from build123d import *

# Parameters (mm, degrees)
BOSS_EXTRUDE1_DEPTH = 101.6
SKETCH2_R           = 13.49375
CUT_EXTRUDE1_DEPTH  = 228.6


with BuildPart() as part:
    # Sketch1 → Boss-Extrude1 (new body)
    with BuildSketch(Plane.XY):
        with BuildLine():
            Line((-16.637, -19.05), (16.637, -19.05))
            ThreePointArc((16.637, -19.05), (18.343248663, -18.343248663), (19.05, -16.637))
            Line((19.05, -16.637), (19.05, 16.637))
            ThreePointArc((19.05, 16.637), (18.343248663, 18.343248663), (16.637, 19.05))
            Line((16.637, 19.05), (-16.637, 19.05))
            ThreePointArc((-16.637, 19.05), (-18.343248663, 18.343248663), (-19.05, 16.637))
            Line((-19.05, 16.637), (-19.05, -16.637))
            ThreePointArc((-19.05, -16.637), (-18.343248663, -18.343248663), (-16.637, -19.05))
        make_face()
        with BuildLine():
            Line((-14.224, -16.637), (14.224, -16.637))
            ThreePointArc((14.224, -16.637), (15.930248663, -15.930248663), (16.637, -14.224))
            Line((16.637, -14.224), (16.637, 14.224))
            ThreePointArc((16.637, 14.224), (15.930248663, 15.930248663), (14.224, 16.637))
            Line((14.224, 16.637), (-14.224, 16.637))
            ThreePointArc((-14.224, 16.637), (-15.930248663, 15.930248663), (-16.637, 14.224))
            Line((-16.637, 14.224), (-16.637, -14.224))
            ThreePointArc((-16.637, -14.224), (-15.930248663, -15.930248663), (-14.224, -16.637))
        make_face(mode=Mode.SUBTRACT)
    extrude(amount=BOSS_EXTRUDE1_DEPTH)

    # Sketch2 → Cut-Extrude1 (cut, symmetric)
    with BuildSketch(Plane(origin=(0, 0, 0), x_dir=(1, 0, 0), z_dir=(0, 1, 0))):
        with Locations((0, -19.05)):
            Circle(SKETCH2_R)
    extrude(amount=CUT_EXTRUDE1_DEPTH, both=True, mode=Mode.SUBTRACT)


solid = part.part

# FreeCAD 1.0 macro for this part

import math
import FreeCAD as App
import Part
import Sketcher
from FreeCAD import Vector
Q = App.Units.Quantity

doc = App.newDocument("Part")
body = doc.addObject("PartDesign::Body", "Body")

# Sketch on XY plane
sketch1 = body.newObject("Sketcher::SketchObject", "Sketch")
sketch1.AttachmentSupport = (doc.getObject("XY_Plane"), [""])
sketch1.MapMode = "FlatFace"
sketch1.addGeometry(Part.LineSegment(Vector(-16.6, -19.1, 0), Vector(16.6, -19.1, 0)), False)
sketch1.addGeometry(Part.ArcOfCircle(Part.Circle(Vector(16.6, -16.6, 0), Vector(0, 0, 1), 2.4), math.radians(-90), math.radians(0)), False)
sketch1.addGeometry(Part.LineSegment(Vector(19.1, -16.6, 0), Vector(19.1, 16.6, 0)), False)
sketch1.addGeometry(Part.ArcOfCircle(Part.Circle(Vector(16.6, 16.6, 0), Vector(0, 0, 1), 2.4), math.radians(0), math.radians(90)), False)
sketch1.addGeometry(Part.LineSegment(Vector(16.6, 19.1, 0), Vector(-16.6, 19.1, 0)), False)
sketch1.addGeometry(Part.ArcOfCircle(Part.Circle(Vector(-16.6, 16.6, 0), Vector(0, 0, 1), 2.4), math.radians(90), math.radians(180)), False)
sketch1.addGeometry(Part.LineSegment(Vector(-19.1, 16.6, 0), Vector(-19.1, -16.6, 0)), False)
sketch1.addGeometry(Part.ArcOfCircle(Part.Circle(Vector(-16.6, -16.6, 0), Vector(0, 0, 1), 2.4), math.radians(180), math.radians(270)), False)
sketch1.addGeometry(Part.LineSegment(Vector(14.2, -16.6, 0), Vector(-14.2, -16.6, 0)), False)
sketch1.addGeometry(Part.ArcOfCircle(Part.Circle(Vector(-14.2, -14.2, 0), Vector(0, 0, 1), 2.4), math.radians(180), math.radians(270)), False)
sketch1.addGeometry(Part.LineSegment(Vector(-16.6, -14.2, 0), Vector(-16.6, 14.2, 0)), False)
sketch1.addGeometry(Part.ArcOfCircle(Part.Circle(Vector(-14.2, 14.2, 0), Vector(0, 0, 1), 2.4), math.radians(90), math.radians(180)), False)
sketch1.addGeometry(Part.LineSegment(Vector(-14.2, 16.6, 0), Vector(14.2, 16.6, 0)), False)
sketch1.addGeometry(Part.ArcOfCircle(Part.Circle(Vector(14.2, 14.2, 0), Vector(0, 0, 1), 2.4), math.radians(0), math.radians(90)), False)
sketch1.addGeometry(Part.LineSegment(Vector(16.6, 14.2, 0), Vector(16.6, -14.2, 0)), False)
sketch1.addGeometry(Part.ArcOfCircle(Part.Circle(Vector(14.2, -14.2, 0), Vector(0, 0, 1), 2.4), math.radians(-90), math.radians(0)), False)
sketch1.addConstraint(Sketcher.Constraint("Tangent", 0, 2, 1, 1))
sketch1.addConstraint(Sketcher.Constraint("Tangent", 1, 2, 2, 1))
sketch1.addConstraint(Sketcher.Constraint("Tangent", 2, 2, 3, 1))
sketch1.addConstraint(Sketcher.Constraint("Tangent", 3, 2, 4, 1))
sketch1.addConstraint(Sketcher.Constraint("Tangent", 4, 2, 5, 1))
sketch1.addConstraint(Sketcher.Constraint("Tangent", 5, 2, 6, 1))
sketch1.addConstraint(Sketcher.Constraint("Tangent", 6, 2, 7, 1))
sketch1.addConstraint(Sketcher.Constraint("Tangent", 7, 2, 0, 1))
sketch1.addConstraint(Sketcher.Constraint("Tangent", 8, 2, 9, 2))
sketch1.addConstraint(Sketcher.Constraint("Tangent", 9, 1, 10, 1))
sketch1.addConstraint(Sketcher.Constraint("Tangent", 10, 2, 11, 2))
sketch1.addConstraint(Sketcher.Constraint("Tangent", 11, 1, 12, 1))
sketch1.addConstraint(Sketcher.Constraint("Tangent", 12, 2, 13, 2))
sketch1.addConstraint(Sketcher.Constraint("Tangent", 13, 1, 14, 1))
sketch1.addConstraint(Sketcher.Constraint("Tangent", 14, 2, 15, 2))
sketch1.addConstraint(Sketcher.Constraint("Tangent", 15, 1, 8, 1))
sketch1.addConstraint(Sketcher.Constraint("Horizontal", 0))
sketch1.addConstraint(Sketcher.Constraint("Vertical", 2))
sketch1.addConstraint(Sketcher.Constraint("Horizontal", 4))
sketch1.addConstraint(Sketcher.Constraint("Vertical", 6))
sketch1.addConstraint(Sketcher.Constraint("Horizontal", 8))
sketch1.addConstraint(Sketcher.Constraint("Vertical", 10))
sketch1.addConstraint(Sketcher.Constraint("Horizontal", 12))
sketch1.addConstraint(Sketcher.Constraint("Vertical", 14))
sketch1.addConstraint(Sketcher.Constraint("Equal", 1, 3))
sketch1.addConstraint(Sketcher.Constraint("Equal", 3, 5))
sketch1.addConstraint(Sketcher.Constraint("Equal", 5, 7))
sketch1.addConstraint(Sketcher.Constraint("Equal", 7, 9))
sketch1.addConstraint(Sketcher.Constraint("Equal", 9, 11))
sketch1.addConstraint(Sketcher.Constraint("Equal", 11, 13))
sketch1.addConstraint(Sketcher.Constraint("Equal", 13, 15))
sketch1.addConstraint(Sketcher.Constraint("Symmetric", 1, 3, 5, 3, -1, 1))
sketch1.addConstraint(Sketcher.Constraint("Symmetric", 9, 3, 13, 3, -1, 1))
sketch1.addConstraint(Sketcher.Constraint("Horizontal", 6, 2, 8, 2))
sketch1.addConstraint(Sketcher.Constraint("Vertical", 7, 2, 9, 1))
sketch1.addConstraint(Sketcher.Constraint("Equal", 4, 2))
sketch1.addConstraint(Sketcher.Constraint("Radius", 1, Q("0.095 in")))
sketch1.addConstraint(Sketcher.Constraint("DistanceX", 0, 1, 0, 2, Q("1.31 in")))
pad1 = body.newObject("PartDesign::Pad", "Pad")
pad1.Profile = sketch1
pad1.Length = Q("4 in")

# Sketch on XZ plane
sketch2 = body.newObject("Sketcher::SketchObject", "Sketch001")
sketch2.AttachmentSupport = (doc.getObject("XZ_Plane"), [""])
sketch2.MapMode = "FlatFace"
sketch2.addGeometry(Part.Circle(Vector(0, 19, 0), Vector(0, 0, 1), 13), False)
sketch2.addConstraint(Sketcher.Constraint("PointOnObject", 0, 3, -2))
sketch2.addConstraint(Sketcher.Constraint("Diameter", 0, Q("1.0625 in")))
sketch2.addConstraint(Sketcher.Constraint("DistanceY", -1, 1, 0, 3, Q("0.75 in")))
pocket1 = body.newObject("PartDesign::Pocket", "Pocket")
pocket1.Profile = sketch2
pocket1.Length = Q("18 in")
pocket1.Midplane = True

doc.recompute()
